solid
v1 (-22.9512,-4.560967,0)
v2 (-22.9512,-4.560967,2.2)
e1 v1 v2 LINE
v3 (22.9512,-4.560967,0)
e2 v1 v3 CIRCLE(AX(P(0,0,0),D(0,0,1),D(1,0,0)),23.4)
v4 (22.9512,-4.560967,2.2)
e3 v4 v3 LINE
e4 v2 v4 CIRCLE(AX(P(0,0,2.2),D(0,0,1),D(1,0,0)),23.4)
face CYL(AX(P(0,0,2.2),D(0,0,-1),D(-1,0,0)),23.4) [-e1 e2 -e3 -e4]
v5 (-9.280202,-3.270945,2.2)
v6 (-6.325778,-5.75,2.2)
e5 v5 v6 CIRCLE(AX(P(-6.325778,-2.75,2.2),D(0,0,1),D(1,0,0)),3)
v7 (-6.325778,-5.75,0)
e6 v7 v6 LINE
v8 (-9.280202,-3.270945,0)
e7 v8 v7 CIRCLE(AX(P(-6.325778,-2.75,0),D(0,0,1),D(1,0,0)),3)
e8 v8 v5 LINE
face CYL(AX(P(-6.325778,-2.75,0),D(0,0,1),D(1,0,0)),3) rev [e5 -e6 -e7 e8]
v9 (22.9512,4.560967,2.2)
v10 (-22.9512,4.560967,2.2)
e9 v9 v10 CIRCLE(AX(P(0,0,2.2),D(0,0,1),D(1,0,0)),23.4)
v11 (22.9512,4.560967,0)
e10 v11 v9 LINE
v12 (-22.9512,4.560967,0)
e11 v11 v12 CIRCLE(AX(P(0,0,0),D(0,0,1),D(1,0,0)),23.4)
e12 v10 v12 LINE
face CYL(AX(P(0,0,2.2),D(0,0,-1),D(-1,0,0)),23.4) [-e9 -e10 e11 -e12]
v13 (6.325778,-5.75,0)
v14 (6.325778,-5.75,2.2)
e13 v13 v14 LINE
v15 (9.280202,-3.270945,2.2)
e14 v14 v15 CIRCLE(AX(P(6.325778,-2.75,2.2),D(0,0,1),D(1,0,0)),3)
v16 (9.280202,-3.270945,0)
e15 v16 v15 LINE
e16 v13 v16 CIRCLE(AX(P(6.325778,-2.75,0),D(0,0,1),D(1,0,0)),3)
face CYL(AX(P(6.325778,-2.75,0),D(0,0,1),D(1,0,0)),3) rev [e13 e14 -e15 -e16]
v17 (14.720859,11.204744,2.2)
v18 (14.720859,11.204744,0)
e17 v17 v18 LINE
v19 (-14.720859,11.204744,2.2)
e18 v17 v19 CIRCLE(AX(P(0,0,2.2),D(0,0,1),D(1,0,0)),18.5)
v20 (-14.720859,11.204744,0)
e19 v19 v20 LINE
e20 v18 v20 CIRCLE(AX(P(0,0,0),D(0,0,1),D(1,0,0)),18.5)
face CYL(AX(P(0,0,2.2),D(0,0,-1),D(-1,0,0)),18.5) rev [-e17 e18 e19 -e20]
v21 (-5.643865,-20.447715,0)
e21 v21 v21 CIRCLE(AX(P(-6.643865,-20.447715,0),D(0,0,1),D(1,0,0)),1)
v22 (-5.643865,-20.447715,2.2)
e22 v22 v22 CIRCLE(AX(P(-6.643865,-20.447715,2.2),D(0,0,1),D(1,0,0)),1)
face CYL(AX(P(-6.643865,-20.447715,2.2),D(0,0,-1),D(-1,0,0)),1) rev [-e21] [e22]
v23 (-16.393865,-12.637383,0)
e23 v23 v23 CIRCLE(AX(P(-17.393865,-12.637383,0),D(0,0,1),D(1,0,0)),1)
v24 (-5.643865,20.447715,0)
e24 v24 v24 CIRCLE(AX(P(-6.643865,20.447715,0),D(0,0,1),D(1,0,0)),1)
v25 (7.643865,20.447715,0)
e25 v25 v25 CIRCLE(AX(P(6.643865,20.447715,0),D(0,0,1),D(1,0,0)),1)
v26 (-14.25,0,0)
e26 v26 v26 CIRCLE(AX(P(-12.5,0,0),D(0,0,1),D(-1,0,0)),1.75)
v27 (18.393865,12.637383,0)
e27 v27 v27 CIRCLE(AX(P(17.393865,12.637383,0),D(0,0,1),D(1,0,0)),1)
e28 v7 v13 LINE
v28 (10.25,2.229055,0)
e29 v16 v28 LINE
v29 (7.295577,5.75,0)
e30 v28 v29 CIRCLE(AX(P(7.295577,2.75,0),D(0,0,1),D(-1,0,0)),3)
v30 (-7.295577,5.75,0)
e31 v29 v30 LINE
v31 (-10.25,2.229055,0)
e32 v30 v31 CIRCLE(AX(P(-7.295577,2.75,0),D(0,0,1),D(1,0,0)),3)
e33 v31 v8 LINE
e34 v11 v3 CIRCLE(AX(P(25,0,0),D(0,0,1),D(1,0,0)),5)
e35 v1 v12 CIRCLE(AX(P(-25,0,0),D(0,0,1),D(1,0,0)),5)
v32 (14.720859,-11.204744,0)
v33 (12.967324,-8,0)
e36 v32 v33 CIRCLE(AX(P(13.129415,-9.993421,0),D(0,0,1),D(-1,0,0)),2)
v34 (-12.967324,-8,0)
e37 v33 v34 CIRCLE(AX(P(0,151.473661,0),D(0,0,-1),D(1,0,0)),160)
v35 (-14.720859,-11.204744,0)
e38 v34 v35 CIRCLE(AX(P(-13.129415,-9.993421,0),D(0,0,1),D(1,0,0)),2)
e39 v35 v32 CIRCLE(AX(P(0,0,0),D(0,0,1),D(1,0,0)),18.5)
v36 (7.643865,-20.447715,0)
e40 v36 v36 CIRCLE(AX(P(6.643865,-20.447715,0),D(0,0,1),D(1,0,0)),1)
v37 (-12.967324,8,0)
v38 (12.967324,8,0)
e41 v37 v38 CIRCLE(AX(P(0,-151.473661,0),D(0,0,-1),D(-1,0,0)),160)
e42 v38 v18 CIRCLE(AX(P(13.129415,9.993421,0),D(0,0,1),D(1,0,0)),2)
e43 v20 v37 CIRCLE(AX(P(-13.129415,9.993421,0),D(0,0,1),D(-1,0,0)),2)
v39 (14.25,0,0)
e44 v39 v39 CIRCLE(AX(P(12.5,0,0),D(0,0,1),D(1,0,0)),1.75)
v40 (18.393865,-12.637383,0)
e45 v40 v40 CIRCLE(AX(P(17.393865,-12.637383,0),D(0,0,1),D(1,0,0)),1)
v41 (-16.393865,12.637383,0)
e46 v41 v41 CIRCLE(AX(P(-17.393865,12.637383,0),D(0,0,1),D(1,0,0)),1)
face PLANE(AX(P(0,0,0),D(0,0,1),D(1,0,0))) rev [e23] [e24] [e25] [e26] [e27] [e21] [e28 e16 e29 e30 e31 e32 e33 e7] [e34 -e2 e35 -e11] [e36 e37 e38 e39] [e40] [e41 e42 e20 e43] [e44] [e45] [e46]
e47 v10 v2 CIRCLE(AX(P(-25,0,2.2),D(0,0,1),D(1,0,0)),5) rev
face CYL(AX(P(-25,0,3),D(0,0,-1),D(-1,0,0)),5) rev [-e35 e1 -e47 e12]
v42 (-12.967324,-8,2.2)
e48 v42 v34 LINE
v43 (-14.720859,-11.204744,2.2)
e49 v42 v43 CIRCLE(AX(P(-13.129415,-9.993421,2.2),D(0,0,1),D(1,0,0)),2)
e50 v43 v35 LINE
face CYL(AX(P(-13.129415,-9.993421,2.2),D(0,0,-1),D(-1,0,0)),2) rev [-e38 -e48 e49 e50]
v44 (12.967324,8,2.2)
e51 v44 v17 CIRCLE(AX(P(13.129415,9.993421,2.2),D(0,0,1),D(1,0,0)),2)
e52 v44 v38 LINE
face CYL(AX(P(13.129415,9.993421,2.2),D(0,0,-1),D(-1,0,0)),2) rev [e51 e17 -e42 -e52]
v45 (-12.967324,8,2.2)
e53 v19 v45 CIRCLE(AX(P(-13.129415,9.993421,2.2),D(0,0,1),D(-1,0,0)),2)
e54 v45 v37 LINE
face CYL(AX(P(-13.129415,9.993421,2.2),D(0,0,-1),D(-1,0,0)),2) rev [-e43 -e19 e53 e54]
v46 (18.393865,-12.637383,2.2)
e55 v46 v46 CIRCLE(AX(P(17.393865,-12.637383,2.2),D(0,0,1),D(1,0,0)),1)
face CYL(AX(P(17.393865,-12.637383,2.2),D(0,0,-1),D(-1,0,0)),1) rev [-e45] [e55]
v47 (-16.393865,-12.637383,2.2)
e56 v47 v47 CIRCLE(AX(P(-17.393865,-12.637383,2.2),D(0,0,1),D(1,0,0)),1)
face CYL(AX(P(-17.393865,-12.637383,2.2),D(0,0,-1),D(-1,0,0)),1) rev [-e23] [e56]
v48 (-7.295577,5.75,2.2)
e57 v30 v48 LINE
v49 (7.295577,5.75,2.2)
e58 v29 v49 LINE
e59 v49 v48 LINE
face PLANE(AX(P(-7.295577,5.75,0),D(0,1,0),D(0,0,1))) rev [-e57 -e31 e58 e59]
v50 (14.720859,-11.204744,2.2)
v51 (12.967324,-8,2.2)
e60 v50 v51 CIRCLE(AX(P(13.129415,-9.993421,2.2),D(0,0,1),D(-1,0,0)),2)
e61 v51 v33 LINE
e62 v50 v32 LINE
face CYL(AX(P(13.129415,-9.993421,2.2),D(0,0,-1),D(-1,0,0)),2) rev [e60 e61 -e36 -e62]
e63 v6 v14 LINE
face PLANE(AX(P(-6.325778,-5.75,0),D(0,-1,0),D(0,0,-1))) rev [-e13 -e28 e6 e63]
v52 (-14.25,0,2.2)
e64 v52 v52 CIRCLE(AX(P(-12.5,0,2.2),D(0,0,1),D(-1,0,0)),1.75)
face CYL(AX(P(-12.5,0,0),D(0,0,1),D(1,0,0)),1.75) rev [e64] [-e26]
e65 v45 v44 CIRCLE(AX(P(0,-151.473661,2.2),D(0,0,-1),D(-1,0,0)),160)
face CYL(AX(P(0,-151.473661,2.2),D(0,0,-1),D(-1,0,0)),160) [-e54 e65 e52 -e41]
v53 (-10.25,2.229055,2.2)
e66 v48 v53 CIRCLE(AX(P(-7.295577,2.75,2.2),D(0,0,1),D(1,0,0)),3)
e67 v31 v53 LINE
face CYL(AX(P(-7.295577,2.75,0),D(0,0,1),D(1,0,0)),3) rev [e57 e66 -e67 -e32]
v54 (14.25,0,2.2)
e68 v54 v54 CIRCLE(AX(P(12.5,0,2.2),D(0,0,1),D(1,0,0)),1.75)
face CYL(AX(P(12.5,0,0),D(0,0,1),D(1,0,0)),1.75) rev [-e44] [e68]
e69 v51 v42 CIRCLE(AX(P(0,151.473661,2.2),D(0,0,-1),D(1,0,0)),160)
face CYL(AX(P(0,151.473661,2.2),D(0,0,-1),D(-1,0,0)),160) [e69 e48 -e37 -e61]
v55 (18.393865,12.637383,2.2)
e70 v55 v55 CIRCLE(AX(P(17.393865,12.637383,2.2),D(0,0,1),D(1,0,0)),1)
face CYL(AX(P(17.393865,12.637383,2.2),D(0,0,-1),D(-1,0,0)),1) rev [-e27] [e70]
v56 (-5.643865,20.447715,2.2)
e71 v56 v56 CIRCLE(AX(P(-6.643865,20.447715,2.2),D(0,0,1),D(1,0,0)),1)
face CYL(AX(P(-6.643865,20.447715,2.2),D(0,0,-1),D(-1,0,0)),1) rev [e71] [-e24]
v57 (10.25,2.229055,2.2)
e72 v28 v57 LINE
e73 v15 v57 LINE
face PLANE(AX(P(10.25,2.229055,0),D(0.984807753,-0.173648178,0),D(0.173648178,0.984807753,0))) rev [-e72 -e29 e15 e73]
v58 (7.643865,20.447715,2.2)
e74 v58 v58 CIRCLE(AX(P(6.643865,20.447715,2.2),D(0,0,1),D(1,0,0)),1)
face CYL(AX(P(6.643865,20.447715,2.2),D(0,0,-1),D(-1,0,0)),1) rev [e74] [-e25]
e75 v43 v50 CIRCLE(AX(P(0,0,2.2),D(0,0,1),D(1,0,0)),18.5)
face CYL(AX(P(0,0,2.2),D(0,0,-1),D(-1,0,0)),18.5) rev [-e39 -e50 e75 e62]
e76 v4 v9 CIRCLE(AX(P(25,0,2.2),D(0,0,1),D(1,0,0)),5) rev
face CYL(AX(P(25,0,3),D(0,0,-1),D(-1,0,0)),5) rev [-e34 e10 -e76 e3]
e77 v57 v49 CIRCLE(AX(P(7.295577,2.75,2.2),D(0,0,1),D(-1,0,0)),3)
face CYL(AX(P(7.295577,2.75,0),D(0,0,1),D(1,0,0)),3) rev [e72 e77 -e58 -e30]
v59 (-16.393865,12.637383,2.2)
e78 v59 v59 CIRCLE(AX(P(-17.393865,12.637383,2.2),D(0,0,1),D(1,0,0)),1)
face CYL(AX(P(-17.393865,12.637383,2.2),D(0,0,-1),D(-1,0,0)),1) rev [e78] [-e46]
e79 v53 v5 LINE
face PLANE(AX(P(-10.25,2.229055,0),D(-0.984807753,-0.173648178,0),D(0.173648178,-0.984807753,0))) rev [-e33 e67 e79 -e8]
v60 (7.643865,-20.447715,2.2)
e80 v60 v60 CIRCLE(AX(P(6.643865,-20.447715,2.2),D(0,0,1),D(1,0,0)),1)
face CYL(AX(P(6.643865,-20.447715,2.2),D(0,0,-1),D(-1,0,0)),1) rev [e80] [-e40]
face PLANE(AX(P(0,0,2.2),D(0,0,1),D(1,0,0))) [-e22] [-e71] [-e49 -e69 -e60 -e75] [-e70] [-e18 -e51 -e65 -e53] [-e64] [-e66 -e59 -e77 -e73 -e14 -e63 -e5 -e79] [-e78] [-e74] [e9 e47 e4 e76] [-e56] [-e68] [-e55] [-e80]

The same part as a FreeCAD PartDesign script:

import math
import FreeCAD as App
import Part
import Sketcher
Q = App.Units.Quantity

doc = App.newDocument("Part")
params = doc.addObject("Spreadsheet::Sheet", "Params")
for row, (alias, value) in enumerate([
    ("sketch1_diameter", "2 mm"),
    ("sketch1_radius", "2 mm"),
    ("sketch1_radius2", "160 mm"),
    ("sketch1_diameter2", "46.8 mm"),
    ("sketch1_radius3", "18.5 mm"),
    ("pad1_length", "2.2 mm"),
    ("sketch2_radius", "3 mm"),
    ("sketch2_diameter", "3.5 mm"),
    ("sketch3_diameter", "10 mm"),
    ("pocket2_length", "3 mm"),
], start=1):
    params.set(f"A{row}", alias)
    params.set(f"B{row}", "=" + value)
    params.setAlias(f"B{row}", alias)

body = doc.addObject("PartDesign::Body", "Body")

sketch1 = body.newObject("Sketcher::SketchObject", "Sketch")
sketch1.AttachmentSupport = (doc.getObject("XY_Plane"), [""])
sketch1.MapMode = "FlatFace"
sketch1.addGeometry([
    Part.Circle(App.Vector(0, 0, 0), App.Vector(0, 0, 1), 23.4),
    Part.Circle(App.Vector(-17.4, -12.6, 0), App.Vector(0, 0, 1), 1),
    Part.Circle(App.Vector(-6.6, -20.4, 0), App.Vector(0, 0, 1), 1),
    Part.Circle(App.Vector(6.6, -20.4, 0), App.Vector(0, 0, 1), 1),
    Part.ArcOfCircle(Part.Circle(App.Vector(0, 0, 0), App.Vector(0, 0, 1), 18.5), math.radians(-143), math.radians(-37)),
    Part.ArcOfCircle(Part.Circle(App.Vector(-13.1, -10, 0), App.Vector(0, 0, 1), 2), math.radians(85), math.radians(217)),
    Part.ArcOfCircle(Part.Circle(App.Vector(0, 151.5, 0), App.Vector(0, 0, 1), 160), math.radians(-94.65), math.radians(-85.35)),
    Part.ArcOfCircle(Part.Circle(App.Vector(13.1, -10, 0), App.Vector(0, 0, 1), 2), math.radians(-37), math.radians(95)),
    Part.Circle(App.Vector(17.4, -12.6, 0), App.Vector(0, 0, 1), 1),
    Part.Circle(App.Vector(-17.4, 12.6, 0), App.Vector(0, 0, 1), 1),
    Part.Circle(App.Vector(-6.6, 20.4, 0), App.Vector(0, 0, 1), 1),
    Part.ArcOfCircle(Part.Circle(App.Vector(0, 0, 0), App.Vector(0, 0, 1), 18.5), math.radians(37), math.radians(143)),
    Part.ArcOfCircle(Part.Circle(App.Vector(13.1, 10, 0), App.Vector(0, 0, 1), 2), math.radians(-95), math.radians(37)),
    Part.ArcOfCircle(Part.Circle(App.Vector(0, -151.5, 0), App.Vector(0, 0, 1), 160), math.radians(85.35), math.radians(94.65)),
    Part.ArcOfCircle(Part.Circle(App.Vector(-13.1, 10, 0), App.Vector(0, 0, 1), 2), math.radians(143), math.radians(275)),
    Part.Circle(App.Vector(6.6, 20.4, 0), App.Vector(0, 0, 1), 1),
    Part.Circle(App.Vector(17.4, 12.6, 0), App.Vector(0, 0, 1), 1),
], False)
sketch1.addConstraint([
    Sketcher.Constraint("Tangent", 4, 1, 5, 2),
    Sketcher.Constraint("Tangent", 5, 1, 6, 1),
    Sketcher.Constraint("Tangent", 6, 2, 7, 2),
    Sketcher.Constraint("Tangent", 7, 1, 4, 2),
    Sketcher.Constraint("Tangent", 11, 1, 12, 2),
    Sketcher.Constraint("Tangent", 12, 1, 13, 1),
    Sketcher.Constraint("Tangent", 13, 2, 14, 2),
    Sketcher.Constraint("Tangent", 14, 1, 11, 2),
    Sketcher.Constraint("Coincident", 0, 3, -1, 1),
    Sketcher.Constraint("Coincident", 4, 3, -1, 1),
    Sketcher.Constraint("Coincident", 11, 3, -1, 1),
    Sketcher.Constraint("Equal", 1, 2),
    Sketcher.Constraint("Equal", 2, 3),
    Sketcher.Constraint("Equal", 5, 7),
    Sketcher.Constraint("Equal", 3, 8),
    Sketcher.Constraint("Equal", 8, 9),
    Sketcher.Constraint("Equal", 9, 10),
    Sketcher.Constraint("Equal", 4, 11),
    Sketcher.Constraint("Equal", 7, 12),
    Sketcher.Constraint("Equal", 6, 13),
    Sketcher.Constraint("Equal", 12, 14),
    Sketcher.Constraint("Equal", 10, 15),
    Sketcher.Constraint("Equal", 15, 16),
    Sketcher.Constraint("Symmetric", 8, 3, 9, 3, -1, 1),
    Sketcher.Constraint("Symmetric", 3, 3, 10, 3, -1, 1),
    Sketcher.Constraint("Symmetric", 6, 3, 13, 3, -1, 1),
    Sketcher.Constraint("Symmetric", 2, 3, 15, 3, -1, 1),
    Sketcher.Constraint("Symmetric", 1, 3, 16, 3, -1, 1),
    Sketcher.Constraint("Symmetric", 2, 3, 3, 3, -2),
    Sketcher.Constraint("Symmetric", 1, 3, 8, 3, -2),
    Sketcher.Constraint("PointOnObject", 6, 3, -2),
    Sketcher.Constraint("Diameter", 1, Q("2 mm")),
    Sketcher.Constraint("Radius", 5, Q("2 mm")),
    Sketcher.Constraint("Radius", 6, Q("160 mm")),
    Sketcher.Constraint("Diameter", 0, Q("46.8 mm")),
    Sketcher.Constraint("Radius", 4, Q("18.5 mm")),
    Sketcher.Constraint("DistanceY", 5, 1, -1, 1, Q("8 mm")),
    Sketcher.Constraint("DistanceX", 1, 3, 2, 3, Q("10.75 mm")),
    Sketcher.Constraint("DistanceY", 2, 3, 9, 3, Q("33.085098 mm")),
    Sketcher.Constraint("DistanceX", 2, 3, 3, 3, Q("13.287731 mm")),
    Sketcher.Constraint("DistanceY", 13, 3, 1, 3, Q("138.836278 mm")),
])
sketch1.setExpression("Constraints[31]", "Params.sketch1_diameter")
sketch1.setExpression("Constraints[32]", "Params.sketch1_radius")
sketch1.setExpression("Constraints[33]", "Params.sketch1_radius2")
sketch1.setExpression("Constraints[34]", "Params.sketch1_diameter2")
sketch1.setExpression("Constraints[35]", "Params.sketch1_radius3")
pad1 = body.newObject("PartDesign::Pad", "Pad")
pad1.Profile = sketch1
pad1.setExpression("Length", "Params.pad1_length")

sketch2 = body.newObject("Sketcher::SketchObject", "Sketch001")
sketch2.AttachmentSupport = (doc.getObject("XY_Plane"), [""])
sketch2.MapMode = "FlatFace"
sketch2.AttachmentOffset = App.Placement(App.Vector(0, 0, 2.2), App.Rotation())
sketch2.addGeometry([
    Part.Circle(App.Vector(12.5, 0, 0), App.Vector(0, 0, 1), 1.8),
    Part.Circle(App.Vector(-12.5, 0, 0), App.Vector(0, 0, 1), 1.8),
    Part.LineSegment(App.Vector(7.3, 5.8, 0), App.Vector(-7.3, 5.8, 0)),
    Part.ArcOfCircle(Part.Circle(App.Vector(-7.3, 2.7, 0), App.Vector(0, 0, 1), 3), math.radians(90), math.radians(190)),
    Part.LineSegment(App.Vector(-10.2, 2.2, 0), App.Vector(-9.3, -3.3, 0)),
    Part.ArcOfCircle(Part.Circle(App.Vector(-6.3, -2.7, 0), App.Vector(0, 0, 1), 3), math.radians(-170), math.radians(-90)),
    Part.LineSegment(App.Vector(-6.3, -5.8, 0), App.Vector(6.3, -5.8, 0)),
    Part.ArcOfCircle(Part.Circle(App.Vector(6.3, -2.7, 0), App.Vector(0, 0, 1), 3), math.radians(-90), math.radians(-10)),
    Part.LineSegment(App.Vector(9.3, -3.3, 0), App.Vector(10.2, 2.2, 0)),
    Part.ArcOfCircle(Part.Circle(App.Vector(7.3, 2.7, 0), App.Vector(0, 0, 1), 3), math.radians(-10), math.radians(90)),
], False)
sketch2.addConstraint([
    Sketcher.Constraint("Tangent", 2, 2, 3, 1),
    Sketcher.Constraint("Tangent", 3, 2, 4, 1),
    Sketcher.Constraint("Tangent", 4, 2, 5, 1),
    Sketcher.Constraint("Tangent", 5, 2, 6, 1),
    Sketcher.Constraint("Tangent", 6, 2, 7, 1),
    Sketcher.Constraint("Tangent", 7, 2, 8, 1),
    Sketcher.Constraint("Tangent", 8, 2, 9, 1),
    Sketcher.Constraint("Tangent", 9, 2, 2, 1),
    Sketcher.Constraint("Horizontal", 2),
    Sketcher.Constraint("Horizontal", 6),
    Sketcher.Constraint("Equal", 0, 1),
    Sketcher.Constraint("Equal", 3, 5),
    Sketcher.Constraint("Equal", 5, 7),
    Sketcher.Constraint("Equal", 7, 9),
    Sketcher.Constraint("Symmetric", 0, 3, 1, 3, -1, 1),
    Sketcher.Constraint("Symmetric", 4, 2, 7, 2, -2),
    Sketcher.Constraint("PointOnObject", 0, 3, -1),
    Sketcher.Constraint("Radius", 3, Q("3 mm")),
    Sketcher.Constraint("Diameter", 0, Q("3.5 mm")),
    Sketcher.Constraint("Angle", 4, Q("-80 deg")),
    Sketcher.Constraint("DistanceX", 1, 3, 0, 3, Q("25 mm")),
    Sketcher.Constraint("DistanceY", 5, 3, 3, 3, Q("5.5 mm")),
    Sketcher.Constraint("DistanceY", -1, 1, 3, 3, Q("2.75 mm")),
    Sketcher.Constraint("DistanceX", 3, 2, -1, 1, Q("10.25 mm")),
])
sketch2.setExpression("Constraints[17]", "Params.sketch2_radius")
sketch2.setExpression("Constraints[18]", "Params.sketch2_diameter")
pocket1 = body.newObject("PartDesign::Pocket", "Pocket")
pocket1.Profile = sketch2
pocket1.Type = "ThroughAll"

sketch3 = body.newObject("Sketcher::SketchObject", "Sketch002")
sketch3.AttachmentSupport = (doc.getObject("XY_Plane"), [""])
sketch3.MapMode = "FlatFace"
sketch3.addGeometry([
    Part.Circle(App.Vector(-25, 0, 0), App.Vector(0, 0, 1), 5),
    Part.Circle(App.Vector(25, 0, 0), App.Vector(0, 0, 1), 5),
], False)
sketch3.addConstraint([
    Sketcher.Constraint("Equal", 0, 1),
    Sketcher.Constraint("Symmetric", 0, 3, 1, 3, -1, 1),
    Sketcher.Constraint("PointOnObject", 0, 3, -1),
    Sketcher.Constraint("Diameter", 0, Q("10 mm")),
    Sketcher.Constraint("DistanceX", 0, 3, -1, 1, Q("25 mm")),
])
sketch3.setExpression("Constraints[3]", "Params.sketch3_diameter")
pocket2 = body.newObject("PartDesign::Pocket", "Pocket001")
pocket2.Profile = sketch3
pocket2.setExpression("Length", "Params.pocket2_length")
pocket2.Reversed = True

doc.recompute()
